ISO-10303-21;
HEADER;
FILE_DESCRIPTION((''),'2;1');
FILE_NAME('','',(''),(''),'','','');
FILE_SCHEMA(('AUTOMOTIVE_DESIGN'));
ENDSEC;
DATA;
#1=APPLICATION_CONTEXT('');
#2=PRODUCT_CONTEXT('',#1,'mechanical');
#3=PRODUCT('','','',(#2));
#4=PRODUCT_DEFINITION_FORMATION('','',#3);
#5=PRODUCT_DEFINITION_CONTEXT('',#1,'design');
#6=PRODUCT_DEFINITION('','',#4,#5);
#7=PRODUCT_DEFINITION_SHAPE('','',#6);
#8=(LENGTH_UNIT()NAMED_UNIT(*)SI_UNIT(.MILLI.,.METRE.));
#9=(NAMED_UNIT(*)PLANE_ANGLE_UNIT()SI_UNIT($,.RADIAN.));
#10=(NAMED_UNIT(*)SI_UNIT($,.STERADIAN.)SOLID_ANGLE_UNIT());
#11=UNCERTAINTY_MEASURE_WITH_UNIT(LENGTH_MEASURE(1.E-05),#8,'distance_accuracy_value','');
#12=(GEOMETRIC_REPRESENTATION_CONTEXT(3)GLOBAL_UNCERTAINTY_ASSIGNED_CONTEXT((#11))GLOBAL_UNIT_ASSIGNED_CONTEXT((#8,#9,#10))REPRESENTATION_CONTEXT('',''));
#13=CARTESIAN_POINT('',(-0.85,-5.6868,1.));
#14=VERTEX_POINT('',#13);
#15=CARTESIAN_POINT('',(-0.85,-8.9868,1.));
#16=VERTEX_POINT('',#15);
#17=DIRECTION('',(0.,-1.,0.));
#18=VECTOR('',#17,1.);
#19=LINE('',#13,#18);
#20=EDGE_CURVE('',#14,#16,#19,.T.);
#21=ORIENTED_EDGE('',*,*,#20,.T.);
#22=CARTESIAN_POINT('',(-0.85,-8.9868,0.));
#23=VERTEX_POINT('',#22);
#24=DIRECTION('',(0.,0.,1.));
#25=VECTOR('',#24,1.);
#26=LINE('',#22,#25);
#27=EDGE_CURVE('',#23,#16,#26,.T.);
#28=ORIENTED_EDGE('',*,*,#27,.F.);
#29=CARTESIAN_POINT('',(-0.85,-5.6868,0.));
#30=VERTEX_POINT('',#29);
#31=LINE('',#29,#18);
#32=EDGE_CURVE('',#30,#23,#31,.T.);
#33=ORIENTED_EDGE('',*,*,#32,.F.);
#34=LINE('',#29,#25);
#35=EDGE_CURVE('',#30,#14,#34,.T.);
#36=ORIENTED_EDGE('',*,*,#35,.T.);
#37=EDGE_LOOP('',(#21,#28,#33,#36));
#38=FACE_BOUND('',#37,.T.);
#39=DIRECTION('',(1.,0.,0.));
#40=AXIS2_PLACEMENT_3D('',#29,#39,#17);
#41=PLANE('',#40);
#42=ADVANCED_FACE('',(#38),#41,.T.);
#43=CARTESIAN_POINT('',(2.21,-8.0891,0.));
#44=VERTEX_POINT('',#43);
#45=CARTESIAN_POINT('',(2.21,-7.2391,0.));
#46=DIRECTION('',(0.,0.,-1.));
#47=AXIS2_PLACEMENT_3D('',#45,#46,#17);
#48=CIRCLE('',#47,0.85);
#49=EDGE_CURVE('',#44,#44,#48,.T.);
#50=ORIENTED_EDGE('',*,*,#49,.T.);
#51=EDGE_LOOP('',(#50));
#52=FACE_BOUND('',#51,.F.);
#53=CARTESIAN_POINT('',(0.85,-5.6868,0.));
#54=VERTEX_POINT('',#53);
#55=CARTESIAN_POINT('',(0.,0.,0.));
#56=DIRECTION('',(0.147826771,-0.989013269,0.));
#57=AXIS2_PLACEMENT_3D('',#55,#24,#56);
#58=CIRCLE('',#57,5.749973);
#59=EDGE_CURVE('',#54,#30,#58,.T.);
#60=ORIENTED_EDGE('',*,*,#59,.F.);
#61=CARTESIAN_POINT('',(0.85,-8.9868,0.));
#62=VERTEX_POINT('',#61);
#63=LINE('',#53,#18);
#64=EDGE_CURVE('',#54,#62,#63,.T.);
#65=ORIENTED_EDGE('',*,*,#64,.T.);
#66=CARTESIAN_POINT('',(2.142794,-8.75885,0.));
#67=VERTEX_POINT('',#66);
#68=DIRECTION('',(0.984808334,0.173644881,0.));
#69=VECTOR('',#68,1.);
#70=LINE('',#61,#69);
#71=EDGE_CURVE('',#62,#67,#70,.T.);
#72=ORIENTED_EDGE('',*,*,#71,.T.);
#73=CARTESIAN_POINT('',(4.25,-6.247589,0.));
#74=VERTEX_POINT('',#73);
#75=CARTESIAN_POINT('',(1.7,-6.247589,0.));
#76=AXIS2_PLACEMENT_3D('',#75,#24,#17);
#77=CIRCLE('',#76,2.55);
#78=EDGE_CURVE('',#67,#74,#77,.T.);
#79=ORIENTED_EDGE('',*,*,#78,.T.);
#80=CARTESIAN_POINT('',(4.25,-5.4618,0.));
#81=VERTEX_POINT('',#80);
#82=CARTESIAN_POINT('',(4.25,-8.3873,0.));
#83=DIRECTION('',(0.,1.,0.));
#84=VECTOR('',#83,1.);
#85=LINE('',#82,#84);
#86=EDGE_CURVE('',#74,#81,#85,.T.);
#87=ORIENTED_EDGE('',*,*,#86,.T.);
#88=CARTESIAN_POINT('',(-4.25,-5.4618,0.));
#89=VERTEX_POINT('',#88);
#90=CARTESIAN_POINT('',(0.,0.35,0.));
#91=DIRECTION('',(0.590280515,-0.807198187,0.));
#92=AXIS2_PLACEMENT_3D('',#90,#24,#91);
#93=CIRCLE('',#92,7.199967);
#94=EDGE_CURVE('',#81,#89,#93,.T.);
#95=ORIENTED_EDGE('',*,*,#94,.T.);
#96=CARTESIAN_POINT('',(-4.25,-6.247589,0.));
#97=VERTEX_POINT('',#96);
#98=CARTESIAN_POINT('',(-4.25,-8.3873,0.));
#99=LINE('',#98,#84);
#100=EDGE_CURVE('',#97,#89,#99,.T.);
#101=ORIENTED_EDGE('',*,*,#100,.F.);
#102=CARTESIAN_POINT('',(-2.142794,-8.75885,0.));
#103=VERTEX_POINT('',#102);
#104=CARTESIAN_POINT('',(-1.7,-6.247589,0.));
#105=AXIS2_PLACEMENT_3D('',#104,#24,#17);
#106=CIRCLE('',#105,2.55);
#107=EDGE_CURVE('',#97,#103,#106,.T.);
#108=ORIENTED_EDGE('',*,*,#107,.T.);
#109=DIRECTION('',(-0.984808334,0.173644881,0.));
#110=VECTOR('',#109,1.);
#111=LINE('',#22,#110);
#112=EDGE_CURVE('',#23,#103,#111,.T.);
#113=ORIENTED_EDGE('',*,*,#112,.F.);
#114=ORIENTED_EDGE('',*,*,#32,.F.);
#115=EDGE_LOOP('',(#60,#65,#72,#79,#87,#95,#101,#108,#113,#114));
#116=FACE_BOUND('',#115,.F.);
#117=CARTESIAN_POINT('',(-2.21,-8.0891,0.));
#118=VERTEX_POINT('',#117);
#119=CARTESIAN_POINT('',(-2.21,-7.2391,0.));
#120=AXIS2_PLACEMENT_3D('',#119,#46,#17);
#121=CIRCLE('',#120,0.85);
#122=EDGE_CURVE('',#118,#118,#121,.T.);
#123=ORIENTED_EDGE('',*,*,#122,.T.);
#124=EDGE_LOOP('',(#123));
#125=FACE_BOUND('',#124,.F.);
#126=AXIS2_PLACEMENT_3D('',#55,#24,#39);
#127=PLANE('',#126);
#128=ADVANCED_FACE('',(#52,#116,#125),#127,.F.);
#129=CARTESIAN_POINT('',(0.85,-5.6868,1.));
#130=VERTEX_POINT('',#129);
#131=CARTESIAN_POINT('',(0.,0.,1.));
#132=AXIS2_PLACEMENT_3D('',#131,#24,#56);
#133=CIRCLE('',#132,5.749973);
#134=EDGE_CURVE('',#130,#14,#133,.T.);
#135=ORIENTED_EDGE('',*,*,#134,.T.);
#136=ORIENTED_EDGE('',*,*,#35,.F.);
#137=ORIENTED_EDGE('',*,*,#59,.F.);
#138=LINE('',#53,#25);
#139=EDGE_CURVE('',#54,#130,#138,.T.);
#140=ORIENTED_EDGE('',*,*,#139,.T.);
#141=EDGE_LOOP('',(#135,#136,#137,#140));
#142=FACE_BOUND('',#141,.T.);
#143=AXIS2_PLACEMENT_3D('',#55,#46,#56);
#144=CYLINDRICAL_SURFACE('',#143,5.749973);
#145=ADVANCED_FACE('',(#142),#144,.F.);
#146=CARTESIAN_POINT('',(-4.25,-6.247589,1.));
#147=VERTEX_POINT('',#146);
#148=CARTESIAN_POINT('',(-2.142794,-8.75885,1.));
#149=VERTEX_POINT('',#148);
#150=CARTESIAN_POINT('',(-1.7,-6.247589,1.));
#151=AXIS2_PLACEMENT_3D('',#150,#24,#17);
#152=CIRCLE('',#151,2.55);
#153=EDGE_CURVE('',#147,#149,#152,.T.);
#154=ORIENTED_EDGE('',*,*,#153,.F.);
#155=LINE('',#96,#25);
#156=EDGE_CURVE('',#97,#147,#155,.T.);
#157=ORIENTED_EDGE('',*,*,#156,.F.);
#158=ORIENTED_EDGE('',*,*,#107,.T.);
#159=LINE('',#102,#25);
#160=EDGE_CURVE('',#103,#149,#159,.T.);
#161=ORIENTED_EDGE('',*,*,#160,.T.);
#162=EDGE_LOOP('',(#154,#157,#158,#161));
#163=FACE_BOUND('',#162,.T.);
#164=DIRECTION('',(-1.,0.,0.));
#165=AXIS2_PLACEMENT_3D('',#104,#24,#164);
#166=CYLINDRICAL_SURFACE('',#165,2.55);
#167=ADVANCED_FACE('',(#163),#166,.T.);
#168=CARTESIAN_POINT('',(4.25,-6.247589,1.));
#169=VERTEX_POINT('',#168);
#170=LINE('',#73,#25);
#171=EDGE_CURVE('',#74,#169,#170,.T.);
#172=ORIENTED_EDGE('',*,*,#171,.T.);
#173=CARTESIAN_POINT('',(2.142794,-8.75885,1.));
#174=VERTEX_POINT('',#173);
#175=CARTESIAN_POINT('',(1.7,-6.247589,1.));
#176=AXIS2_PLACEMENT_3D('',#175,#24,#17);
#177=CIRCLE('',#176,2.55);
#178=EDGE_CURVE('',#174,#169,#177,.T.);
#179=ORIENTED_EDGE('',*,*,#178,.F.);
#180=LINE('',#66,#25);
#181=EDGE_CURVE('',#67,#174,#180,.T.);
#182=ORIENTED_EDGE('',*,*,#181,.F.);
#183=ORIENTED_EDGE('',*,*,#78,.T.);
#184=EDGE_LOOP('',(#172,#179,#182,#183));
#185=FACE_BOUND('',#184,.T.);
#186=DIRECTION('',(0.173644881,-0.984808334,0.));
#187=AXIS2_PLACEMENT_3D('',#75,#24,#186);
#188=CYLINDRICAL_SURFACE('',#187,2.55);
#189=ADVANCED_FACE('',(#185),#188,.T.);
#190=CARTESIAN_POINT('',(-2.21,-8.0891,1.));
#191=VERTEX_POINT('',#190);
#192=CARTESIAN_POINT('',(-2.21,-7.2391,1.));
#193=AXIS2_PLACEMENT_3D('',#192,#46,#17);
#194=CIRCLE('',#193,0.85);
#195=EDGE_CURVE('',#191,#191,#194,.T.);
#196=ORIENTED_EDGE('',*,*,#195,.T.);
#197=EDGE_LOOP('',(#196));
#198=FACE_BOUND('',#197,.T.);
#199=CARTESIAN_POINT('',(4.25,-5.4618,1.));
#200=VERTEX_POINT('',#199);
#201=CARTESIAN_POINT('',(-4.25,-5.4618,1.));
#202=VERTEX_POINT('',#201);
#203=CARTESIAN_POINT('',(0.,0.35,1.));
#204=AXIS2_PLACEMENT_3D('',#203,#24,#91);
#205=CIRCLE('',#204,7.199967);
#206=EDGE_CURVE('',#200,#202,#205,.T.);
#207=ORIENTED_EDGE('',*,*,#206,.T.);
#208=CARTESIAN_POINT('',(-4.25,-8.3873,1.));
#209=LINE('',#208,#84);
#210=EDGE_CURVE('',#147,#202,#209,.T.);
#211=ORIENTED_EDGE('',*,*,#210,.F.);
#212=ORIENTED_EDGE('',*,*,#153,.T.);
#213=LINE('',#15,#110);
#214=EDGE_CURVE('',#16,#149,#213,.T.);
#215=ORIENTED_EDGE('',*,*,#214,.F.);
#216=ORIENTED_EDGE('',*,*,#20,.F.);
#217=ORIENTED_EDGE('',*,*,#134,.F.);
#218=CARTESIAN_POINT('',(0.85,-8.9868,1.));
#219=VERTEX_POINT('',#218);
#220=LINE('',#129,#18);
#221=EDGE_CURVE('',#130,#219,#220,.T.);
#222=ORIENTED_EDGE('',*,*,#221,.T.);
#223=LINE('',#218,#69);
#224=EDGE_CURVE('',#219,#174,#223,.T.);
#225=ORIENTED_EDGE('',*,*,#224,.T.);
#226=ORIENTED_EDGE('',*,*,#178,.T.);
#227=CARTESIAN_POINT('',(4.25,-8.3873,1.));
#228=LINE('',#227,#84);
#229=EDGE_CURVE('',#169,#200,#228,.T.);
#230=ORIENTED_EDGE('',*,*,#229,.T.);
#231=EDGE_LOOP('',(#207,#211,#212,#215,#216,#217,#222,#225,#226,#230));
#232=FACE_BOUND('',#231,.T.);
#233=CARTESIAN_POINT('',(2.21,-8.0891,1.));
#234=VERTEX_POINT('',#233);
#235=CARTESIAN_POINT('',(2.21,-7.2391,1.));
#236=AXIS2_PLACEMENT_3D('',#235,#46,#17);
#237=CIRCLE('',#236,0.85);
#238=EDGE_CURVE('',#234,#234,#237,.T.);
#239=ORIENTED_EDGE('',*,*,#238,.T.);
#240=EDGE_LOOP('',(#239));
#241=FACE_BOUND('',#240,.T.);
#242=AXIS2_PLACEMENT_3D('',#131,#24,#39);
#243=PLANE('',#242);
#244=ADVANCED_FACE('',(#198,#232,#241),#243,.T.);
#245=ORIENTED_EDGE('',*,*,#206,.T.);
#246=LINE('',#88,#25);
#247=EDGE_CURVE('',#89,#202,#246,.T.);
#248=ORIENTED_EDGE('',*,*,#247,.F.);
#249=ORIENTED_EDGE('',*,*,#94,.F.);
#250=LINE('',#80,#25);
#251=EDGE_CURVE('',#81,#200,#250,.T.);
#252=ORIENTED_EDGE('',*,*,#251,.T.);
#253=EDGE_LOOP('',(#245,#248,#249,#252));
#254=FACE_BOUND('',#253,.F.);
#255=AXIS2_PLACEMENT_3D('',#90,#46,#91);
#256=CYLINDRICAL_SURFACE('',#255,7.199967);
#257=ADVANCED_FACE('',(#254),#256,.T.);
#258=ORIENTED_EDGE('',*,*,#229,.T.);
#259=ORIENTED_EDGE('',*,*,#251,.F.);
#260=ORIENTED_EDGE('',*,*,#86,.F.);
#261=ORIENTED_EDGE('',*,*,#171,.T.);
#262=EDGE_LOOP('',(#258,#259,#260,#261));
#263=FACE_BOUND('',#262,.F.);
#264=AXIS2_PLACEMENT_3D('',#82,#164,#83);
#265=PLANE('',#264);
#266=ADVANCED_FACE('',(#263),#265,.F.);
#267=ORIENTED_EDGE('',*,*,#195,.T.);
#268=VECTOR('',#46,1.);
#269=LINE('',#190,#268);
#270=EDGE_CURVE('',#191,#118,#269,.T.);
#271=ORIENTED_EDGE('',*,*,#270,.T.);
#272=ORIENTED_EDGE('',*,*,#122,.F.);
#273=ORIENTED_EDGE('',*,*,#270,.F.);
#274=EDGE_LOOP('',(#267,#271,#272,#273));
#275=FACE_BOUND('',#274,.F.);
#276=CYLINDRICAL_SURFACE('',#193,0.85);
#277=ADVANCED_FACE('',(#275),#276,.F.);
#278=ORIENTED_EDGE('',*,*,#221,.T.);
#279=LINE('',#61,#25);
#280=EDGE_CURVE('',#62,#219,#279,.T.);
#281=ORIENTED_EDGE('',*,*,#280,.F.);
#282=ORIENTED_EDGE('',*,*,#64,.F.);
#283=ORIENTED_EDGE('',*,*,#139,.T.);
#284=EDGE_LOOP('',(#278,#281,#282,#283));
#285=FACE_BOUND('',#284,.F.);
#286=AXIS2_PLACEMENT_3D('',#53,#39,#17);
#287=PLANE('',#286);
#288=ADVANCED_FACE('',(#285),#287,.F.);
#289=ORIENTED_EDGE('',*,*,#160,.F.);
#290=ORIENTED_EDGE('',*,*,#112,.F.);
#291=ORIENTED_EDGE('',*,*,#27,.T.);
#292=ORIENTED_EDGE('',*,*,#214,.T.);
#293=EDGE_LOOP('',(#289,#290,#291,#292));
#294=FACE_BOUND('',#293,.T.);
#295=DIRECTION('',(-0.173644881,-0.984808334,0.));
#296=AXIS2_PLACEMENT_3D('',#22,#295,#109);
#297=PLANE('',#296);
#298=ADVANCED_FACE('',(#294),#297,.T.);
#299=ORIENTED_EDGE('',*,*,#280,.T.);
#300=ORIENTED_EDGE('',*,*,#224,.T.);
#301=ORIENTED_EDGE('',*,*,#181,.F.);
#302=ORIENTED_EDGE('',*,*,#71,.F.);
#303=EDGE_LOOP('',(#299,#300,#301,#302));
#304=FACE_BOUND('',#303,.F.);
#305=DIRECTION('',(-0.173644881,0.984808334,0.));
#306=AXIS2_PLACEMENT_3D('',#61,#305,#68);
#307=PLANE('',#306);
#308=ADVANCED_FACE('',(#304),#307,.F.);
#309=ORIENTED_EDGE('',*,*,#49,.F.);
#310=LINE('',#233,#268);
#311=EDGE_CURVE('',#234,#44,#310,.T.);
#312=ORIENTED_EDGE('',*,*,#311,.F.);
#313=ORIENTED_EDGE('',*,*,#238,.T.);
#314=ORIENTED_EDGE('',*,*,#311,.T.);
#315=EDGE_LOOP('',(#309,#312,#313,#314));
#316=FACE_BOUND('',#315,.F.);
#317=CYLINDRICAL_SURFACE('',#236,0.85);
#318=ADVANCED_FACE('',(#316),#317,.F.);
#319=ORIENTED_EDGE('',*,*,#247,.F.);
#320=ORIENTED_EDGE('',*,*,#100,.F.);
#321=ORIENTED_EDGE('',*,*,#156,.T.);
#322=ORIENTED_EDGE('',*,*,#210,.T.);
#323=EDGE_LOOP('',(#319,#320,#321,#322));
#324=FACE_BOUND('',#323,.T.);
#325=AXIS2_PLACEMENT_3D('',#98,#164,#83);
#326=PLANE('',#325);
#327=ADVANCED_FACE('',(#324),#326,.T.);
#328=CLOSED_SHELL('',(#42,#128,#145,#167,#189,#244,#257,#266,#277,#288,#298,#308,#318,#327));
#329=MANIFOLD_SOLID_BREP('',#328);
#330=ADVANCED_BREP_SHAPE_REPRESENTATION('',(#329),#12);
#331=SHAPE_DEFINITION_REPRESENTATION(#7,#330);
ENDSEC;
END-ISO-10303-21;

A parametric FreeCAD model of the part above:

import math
import FreeCAD as App
import Part
import Sketcher
Q = App.Units.Quantity


def edges_at(feature, points):
    """Names of the edges that pass closest to the given points."""
    edges = feature.Shape.Edges
    near = lambda p: min(range(len(edges)), key=lambda i: edges[i].distToShape(Part.Vertex(*p))[0])
    return sorted({f"Edge{near(p) + 1}" for p in points})

doc = App.newDocument("Part")
body = doc.addObject("PartDesign::Body", "Body")

sketch1 = body.newObject("Sketcher::SketchObject", "Sketch")
sketch1.AttachmentSupport = (doc.getObject("XY_Plane"), [""])
sketch1.MapMode = "FlatFace"
sketch1.addGeometry([
    Part.LineSegment(App.Vector(0.8, -9, 0), App.Vector(4.2, -8.4, 0)),
    Part.LineSegment(App.Vector(4.2, -8.4, 0), App.Vector(4.2, -5.5, 0)),
    Part.ArcOfCircle(Part.Circle(App.Vector(0, 0.3, 0), App.Vector(0, 0, 1), 7.2), math.radians(-54), math.radians(234)),
    Part.LineSegment(App.Vector(-4.2, -5.5, 0), App.Vector(-4.2, -8.4, 0)),
    Part.LineSegment(App.Vector(-4.2, -8.4, 0), App.Vector(-0.8, -9, 0)),
    Part.LineSegment(App.Vector(-0.8, -9, 0), App.Vector(-0.8, -5.7, 0)),
    Part.ArcOfCircle(Part.Circle(App.Vector(0, 0, 0), App.Vector(0, 0, 1), 5.7), math.radians(-81), math.radians(261)),
    Part.LineSegment(App.Vector(0.8, -5.7, 0), App.Vector(0.8, -9, 0)),
], False)
sketch1.addConstraint([
    Sketcher.Constraint("Coincident", 0, 2, 1, 1),
    Sketcher.Constraint("Coincident", 1, 2, 2, 1),
    Sketcher.Constraint("Coincident", 2, 2, 3, 1),
    Sketcher.Constraint("Coincident", 3, 2, 4, 1),
    Sketcher.Constraint("Coincident", 4, 2, 5, 1),
    Sketcher.Constraint("Coincident", 5, 2, 6, 2),
    Sketcher.Constraint("Coincident", 6, 1, 7, 1),
    Sketcher.Constraint("Coincident", 7, 2, 0, 1),
    Sketcher.Constraint("Vertical", 1),
    Sketcher.Constraint("Vertical", 3),
    Sketcher.Constraint("Vertical", 5),
    Sketcher.Constraint("Vertical", 7),
    Sketcher.Constraint("Coincident", 6, 3, -1, 1),
    Sketcher.Constraint("Symmetric", 1, 2, 2, 2, -2),
    Sketcher.Constraint("Symmetric", 4, 2, 7, 2, -2),
    Sketcher.Constraint("Horizontal", 0, 2, 3, 2),
    Sketcher.Constraint("Radius", 2, 7.2),
    Sketcher.Constraint("Radius", 6, 5.75),
    Sketcher.Constraint("DistanceY", 5, 1, 5, 2, 3.3),
    Sketcher.Constraint("DistanceX", 3, 2, 4, 2, 3.4),
    Sketcher.Constraint("DistanceY", -1, 1, 2, 3, 0.35),
    Sketcher.Constraint("DistanceX", 4, 2, -1, 1, 0.85),
    Sketcher.Constraint("Angle", 0, Q("9.9998 deg")),
])
pad1 = body.newObject("PartDesign::Pad", "Pad")
pad1.Profile = sketch1
pad1.Length = 1

sketch2 = body.newObject("Sketcher::SketchObject", "Sketch001")
sketch2.AttachmentSupport = (doc.getObject("XY_Plane"), [""])
sketch2.MapMode = "FlatFace"
sketch2.AttachmentOffset = App.Placement(App.Vector(0, 0, 1), App.Rotation())
sketch2.addGeometry(Part.Circle(App.Vector(-2.2, -7.2, 0), App.Vector(0, 0, 1), 0.8), False)
sketch2.addConstraint([
    Sketcher.Constraint("Diameter", 0, 1.7),
    Sketcher.Constraint("DistanceX", 0, 3, -1, 1, 2.21),
    Sketcher.Constraint("DistanceY", 0, 3, -1, 1, 7.239),
])
doc.recompute()
hole = body.newObject("PartDesign::Hole", "Hole")
hole.Profile = sketch2
hole.ThreadType = "None"
hole.Diameter = 1.7
hole.DepthType = "ThroughAll"

sketch3 = body.newObject("Sketcher::SketchObject", "Sketch002")
sketch3.AttachmentSupport = (doc.getObject("XY_Plane"), [""])
sketch3.MapMode = "FlatFace"
sketch3.AttachmentOffset = App.Placement(App.Vector(0, 0, 1), App.Rotation())
sketch3.addGeometry(Part.Circle(App.Vector(2.2, -7.2, 0), App.Vector(0, 0, 1), 0.8), False)
sketch3.addConstraint([
    Sketcher.Constraint("Diameter", 0, 1.7),
    Sketcher.Constraint("DistanceX", -1, 1, 0, 3, 2.21),
    Sketcher.Constraint("DistanceY", 0, 3, -1, 1, 7.239),
])
doc.recompute()
hole2 = body.newObject("PartDesign::Hole", "Hole001")
hole2.Profile = sketch3
hole2.ThreadType = "None"
hole2.Diameter = 1.7
hole2.DepthType = "ThroughAll"
doc.recompute()

fillet = body.newObject("PartDesign::Fillet", "Fillet")
fillet.Base = (hole2, edges_at(hole2, [(-4.25, -8.387, 0.5), (4.25, -8.387, 0.5)]))
fillet.Radius = 2.55

doc.recompute()
